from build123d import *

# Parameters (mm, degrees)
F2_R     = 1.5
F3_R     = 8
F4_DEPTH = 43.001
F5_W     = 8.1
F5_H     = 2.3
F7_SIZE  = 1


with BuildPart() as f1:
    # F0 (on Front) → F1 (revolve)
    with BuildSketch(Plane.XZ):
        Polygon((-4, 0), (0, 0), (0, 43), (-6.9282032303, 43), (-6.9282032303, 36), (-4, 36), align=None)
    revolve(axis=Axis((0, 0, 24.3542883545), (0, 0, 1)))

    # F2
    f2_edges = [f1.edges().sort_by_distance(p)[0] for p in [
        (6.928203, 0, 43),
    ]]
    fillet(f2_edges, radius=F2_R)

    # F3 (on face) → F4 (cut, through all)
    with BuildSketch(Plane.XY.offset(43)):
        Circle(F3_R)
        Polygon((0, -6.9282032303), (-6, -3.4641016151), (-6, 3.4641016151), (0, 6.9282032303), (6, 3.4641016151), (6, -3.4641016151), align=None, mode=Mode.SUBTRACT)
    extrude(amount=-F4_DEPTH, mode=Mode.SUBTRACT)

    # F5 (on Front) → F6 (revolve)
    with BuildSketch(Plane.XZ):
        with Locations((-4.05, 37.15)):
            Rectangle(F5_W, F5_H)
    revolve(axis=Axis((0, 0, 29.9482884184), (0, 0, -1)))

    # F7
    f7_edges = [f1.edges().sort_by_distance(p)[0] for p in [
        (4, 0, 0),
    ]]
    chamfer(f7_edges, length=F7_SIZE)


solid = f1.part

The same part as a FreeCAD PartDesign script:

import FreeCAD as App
import Part
import Sketcher

V = App.Vector
Q = App.Units.Quantity


def edges_at(feature, points):
    """Names of the edges that pass closest to the given points."""
    edges = feature.Shape.Edges
    near = lambda p: min(range(len(edges)), key=lambda i: edges[i].distToShape(Part.Vertex(*p))[0])
    return sorted({f"Edge{near(p) + 1}" for p in points})

doc = App.newDocument("Part")
body = doc.addObject("PartDesign::Body", "Body")

sketch1 = body.newObject("Sketcher::SketchObject", "Sketch")
sketch1.AttachmentSupport = (doc.getObject("XZ_Plane"), [""])
sketch1.MapMode = "FlatFace"
sketch1.addGeometry([
    Part.LineSegment(V(-4, 0, 0), V(0, 0, 0)),
    Part.LineSegment(V(0, 0, 0), V(0, 43, 0)),
    Part.LineSegment(V(0, 43, 0), V(-6.928203, 43, 0)),
    Part.LineSegment(V(-6.928203, 43, 0), V(-6.928203, 36, 0)),
    Part.LineSegment(V(-6.928203, 36, 0), V(-4, 36, 0)),
    Part.LineSegment(V(-4, 36, 0), V(-4, 0, 0)),
], False)
sketch1.addConstraint([
    Sketcher.Constraint("Coincident", 0, 2, 1, 1),
    Sketcher.Constraint("Coincident", 1, 2, 2, 1),
    Sketcher.Constraint("Coincident", 2, 2, 3, 1),
    Sketcher.Constraint("Coincident", 3, 2, 4, 1),
    Sketcher.Constraint("Coincident", 4, 2, 5, 1),
    Sketcher.Constraint("Coincident", 5, 2, 0, 1),
    Sketcher.Constraint("Horizontal", 0),
    Sketcher.Constraint("Vertical", 1),
    Sketcher.Constraint("Horizontal", 2),
    Sketcher.Constraint("Vertical", 3),
    Sketcher.Constraint("Horizontal", 4),
    Sketcher.Constraint("Vertical", 5),
    Sketcher.Constraint("Coincident", 0, 2, -1, 1),
    Sketcher.Constraint("DistanceX", 0, 1, 0, 2, 4.0),
    Sketcher.Constraint("DistanceY", 1, 1, 1, 2, 43.0),
    Sketcher.Constraint("DistanceY", 3, 2, 3, 1, 7.0),
    Sketcher.Constraint("DistanceX", 2, 2, 2, 1, 6.928203),
])
revolution = body.newObject("PartDesign::Revolution", "Revolution")
revolution.Profile = sketch1
revolution.ReferenceAxis = (sketch1, ["V_Axis"])
revolution.Angle = 360
doc.recompute()

fillet = body.newObject("PartDesign::Fillet", "Fillet")
fillet.Base = (revolution, edges_at(revolution, [(6.928, 0, 43)]))
fillet.Radius = 1.5

sketch2 = body.newObject("Sketcher::SketchObject", "Sketch001")
sketch2.AttachmentSupport = (doc.getObject("XY_Plane"), [""])
sketch2.MapMode = "FlatFace"
sketch2.AttachmentOffset = App.Placement(V(0, 0, 43), App.Rotation())
sketch2.addGeometry([
    Part.Circle(V(0, 0, 0), V(0, 0, 1), 8),
    Part.LineSegment(V(6, -3.464102, 0), V(0, -6.928203, 0)),
    Part.LineSegment(V(0, -6.928203, 0), V(-6, -3.464102, 0)),
    Part.LineSegment(V(-6, -3.464102, 0), V(-6, 3.464102, 0)),
    Part.LineSegment(V(-6, 3.464102, 0), V(0, 6.928203, 0)),
    Part.LineSegment(V(0, 6.928203, 0), V(6, 3.464102, 0)),
    Part.LineSegment(V(6, 3.464102, 0), V(6, -3.464102, 0)),
], False)
sketch2.addConstraint([
    Sketcher.Constraint("Coincident", 1, 2, 2, 1),
    Sketcher.Constraint("Coincident", 2, 2, 3, 1),
    Sketcher.Constraint("Coincident", 3, 2, 4, 1),
    Sketcher.Constraint("Coincident", 4, 2, 5, 1),
    Sketcher.Constraint("Coincident", 5, 2, 6, 1),
    Sketcher.Constraint("Coincident", 6, 2, 1, 1),
    Sketcher.Constraint("Vertical", 3),
    Sketcher.Constraint("Vertical", 6),
    Sketcher.Constraint("Coincident", 0, 3, -1, 1),
    Sketcher.Constraint("Symmetric", 1, 2, 4, 2, -1, 1),
    Sketcher.Constraint("Symmetric", 2, 2, 5, 2, -1, 1),
    Sketcher.Constraint("PointOnObject", 1, 2, -2),
    Sketcher.Constraint("Parallel", 1, 4),
    Sketcher.Constraint("Horizontal", 3, 2, 5, 2),
    Sketcher.Constraint("Diameter", 0, 16.0),
    Sketcher.Constraint("Angle", 1, Q("-150 deg")),
    Sketcher.Constraint("DistanceX", 2, 2, -1, 1, 6.0),
    Sketcher.Constraint("DistanceY", 2, 2, -1, 1, 3.464102),
])
pocket1 = body.newObject("PartDesign::Pocket", "Pocket")
pocket1.Profile = sketch2
pocket1.Type = "ThroughAll"

sketch3 = body.newObject("Sketcher::SketchObject", "Sketch002")
sketch3.AttachmentSupport = (doc.getObject("XZ_Plane"), [""])
sketch3.MapMode = "FlatFace"
sketch3.addGeometry([
    Part.LineSegment(V(-8.1, 38.3, 0), V(-8.1, 36, 0)),
    Part.LineSegment(V(-8.1, 36, 0), V(0, 36, 0)),
    Part.LineSegment(V(0, 36, 0), V(0, 38.3, 0)),
    Part.LineSegment(V(0, 38.3, 0), V(-8.1, 38.3, 0)),
], False)
sketch3.addConstraint([
    Sketcher.Constraint("Coincident", 0, 2, 1, 1),
    Sketcher.Constraint("Coincident", 1, 2, 2, 1),
    Sketcher.Constraint("Coincident", 2, 2, 3, 1),
    Sketcher.Constraint("Coincident", 3, 2, 0, 1),
    Sketcher.Constraint("Vertical", 0),
    Sketcher.Constraint("Horizontal", 1),
    Sketcher.Constraint("Vertical", 2),
    Sketcher.Constraint("Horizontal", 3),
    Sketcher.Constraint("PointOnObject", 1, 2, -2),
    Sketcher.Constraint("DistanceX", 1, 1, 1, 2, 8.1),
    Sketcher.Constraint("DistanceY", 0, 2, 0, 1, 2.3),
    Sketcher.Constraint("DistanceY", -1, 1, 0, 2, 36.0),
])
revolution2 = body.newObject("PartDesign::Revolution", "Revolution001")
revolution2.Profile = sketch3
revolution2.ReferenceAxis = (sketch3, ["V_Axis"])
revolution2.Angle = 360
doc.recompute()

chamfer = body.newObject("PartDesign::Chamfer", "Chamfer")
chamfer.Base = (revolution2, edges_at(revolution2, [(4, 0, 0)]))
chamfer.Size = 1

doc.recompute()
